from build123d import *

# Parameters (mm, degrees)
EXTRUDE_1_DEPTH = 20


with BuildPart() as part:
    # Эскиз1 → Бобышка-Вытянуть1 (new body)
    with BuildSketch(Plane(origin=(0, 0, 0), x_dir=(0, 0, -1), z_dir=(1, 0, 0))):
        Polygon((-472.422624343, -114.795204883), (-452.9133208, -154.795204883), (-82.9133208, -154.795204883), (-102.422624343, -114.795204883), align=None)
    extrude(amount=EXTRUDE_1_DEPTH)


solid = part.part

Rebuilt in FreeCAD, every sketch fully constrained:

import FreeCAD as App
import Part
import Sketcher
Q = App.Units.Quantity

doc = App.newDocument("Part")
params = doc.addObject("Spreadsheet::Sheet", "Params")
for row, (alias, value) in enumerate([
    ("sketch1_height", "370 mm"),
    ("pad1_length", "20 mm"),
], start=1):
    params.set(f"A{row}", alias)
    params.set(f"B{row}", "=" + value)
    params.setAlias(f"B{row}", alias)

body = doc.addObject("PartDesign::Body", "Body")

# Sketch on YZ plane
sketch1 = body.newObject("Sketcher::SketchObject", "Sketch")
sketch1.AttachmentSupport = (doc.getObject("YZ_Plane"), [""])
sketch1.MapMode = "FlatFace"
sketch1.addGeometry([
    Part.LineSegment(App.Vector(-115, 472, 0), App.Vector(-155, 453, 0)),
    Part.LineSegment(App.Vector(-155, 453, 0), App.Vector(-155, 83, 0)),
    Part.LineSegment(App.Vector(-155, 83, 0), App.Vector(-115, 102, 0)),
    Part.LineSegment(App.Vector(-115, 102, 0), App.Vector(-115, 472, 0)),
], False)
sketch1.addConstraint([
    Sketcher.Constraint("Coincident", 0, 2, 1, 1),
    Sketcher.Constraint("Coincident", 1, 2, 2, 1),
    Sketcher.Constraint("Coincident", 2, 2, 3, 1),
    Sketcher.Constraint("Coincident", 3, 2, 0, 1),
    Sketcher.Constraint("Vertical", 1),
    Sketcher.Constraint("Vertical", 3),
    Sketcher.Constraint("Parallel", 0, 2),
    Sketcher.Constraint("DistanceY", 1, 2, 1, 1, Q("370 mm")),
    Sketcher.Constraint("Angle", 0, Q("-154 deg")),
    Sketcher.Constraint("DistanceX", 1, 2, 2, 2, Q("40 mm")),
    Sketcher.Constraint("DistanceY", -1, 1, 0, 2, Q("452.913321 mm")),
    Sketcher.Constraint("DistanceX", 0, 2, -1, 1, Q("154.795205 mm")),
])
sketch1.setExpression("Constraints[7]", "Params.sketch1_height")
pad1 = body.newObject("PartDesign::Pad", "Pad")
pad1.Profile = sketch1
pad1.setExpression("Length", "Params.pad1_length")

doc.recompute()
